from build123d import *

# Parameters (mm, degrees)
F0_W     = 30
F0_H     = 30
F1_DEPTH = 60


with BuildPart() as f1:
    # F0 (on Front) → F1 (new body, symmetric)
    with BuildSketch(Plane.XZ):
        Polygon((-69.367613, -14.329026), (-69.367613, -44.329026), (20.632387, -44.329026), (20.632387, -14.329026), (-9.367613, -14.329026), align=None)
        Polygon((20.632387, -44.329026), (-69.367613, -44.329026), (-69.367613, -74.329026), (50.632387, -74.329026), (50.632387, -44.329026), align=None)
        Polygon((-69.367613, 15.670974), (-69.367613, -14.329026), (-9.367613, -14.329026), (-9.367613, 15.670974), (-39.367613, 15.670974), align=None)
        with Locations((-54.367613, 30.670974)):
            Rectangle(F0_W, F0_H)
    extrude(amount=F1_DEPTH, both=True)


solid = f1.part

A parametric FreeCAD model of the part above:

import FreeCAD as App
import Part
import Sketcher

doc = App.newDocument("Part")
body = doc.addObject("PartDesign::Body", "Body")

# Sketch on XZ plane
sketch1 = body.newObject("Sketcher::SketchObject", "Sketch")
sketch1.AttachmentSupport = (doc.getObject("XZ_Plane"), [""])
sketch1.MapMode = "FlatFace"
sketch1.addGeometry(Part.LineSegment(App.Vector(-69.367613, -74.329026, 0), App.Vector(50.632387, -74.329026, 0)), False)
sketch1.addGeometry(Part.LineSegment(App.Vector(50.632387, -74.329026, 0), App.Vector(50.632387, -44.329026, 0)), False)
sketch1.addGeometry(Part.LineSegment(App.Vector(50.632387, -44.329026, 0), App.Vector(20.632387, -44.329026, 0)), False)
sketch1.addGeometry(Part.LineSegment(App.Vector(20.632387, -44.329026, 0), App.Vector(20.632387, -14.329026, 0)), False)
sketch1.addGeometry(Part.LineSegment(App.Vector(20.632387, -14.329026, 0), App.Vector(-9.367613, -14.329026, 0)), False)
sketch1.addGeometry(Part.LineSegment(App.Vector(-9.367613, -14.329026, 0), App.Vector(-9.367613, 15.670974, 0)), False)
sketch1.addGeometry(Part.LineSegment(App.Vector(-9.367613, 15.670974, 0), App.Vector(-39.367613, 15.670974, 0)), False)
sketch1.addGeometry(Part.LineSegment(App.Vector(-39.367613, 15.670974, 0), App.Vector(-39.367613, 45.670974, 0)), False)
sketch1.addGeometry(Part.LineSegment(App.Vector(-39.367613, 45.670974, 0), App.Vector(-69.367613, 45.670974, 0)), False)
sketch1.addGeometry(Part.LineSegment(App.Vector(-69.367613, 45.670974, 0), App.Vector(-69.367613, -74.329026, 0)), False)
sketch1.addConstraint(Sketcher.Constraint("Coincident", 0, 2, 1, 1))
sketch1.addConstraint(Sketcher.Constraint("Coincident", 1, 2, 2, 1))
sketch1.addConstraint(Sketcher.Constraint("Coincident", 2, 2, 3, 1))
sketch1.addConstraint(Sketcher.Constraint("Coincident", 3, 2, 4, 1))
sketch1.addConstraint(Sketcher.Constraint("Coincident", 4, 2, 5, 1))
sketch1.addConstraint(Sketcher.Constraint("Coincident", 5, 2, 6, 1))
sketch1.addConstraint(Sketcher.Constraint("Coincident", 6, 2, 7, 1))
sketch1.addConstraint(Sketcher.Constraint("Coincident", 7, 2, 8, 1))
sketch1.addConstraint(Sketcher.Constraint("Coincident", 8, 2, 9, 1))
sketch1.addConstraint(Sketcher.Constraint("Coincident", 9, 2, 0, 1))
sketch1.addConstraint(Sketcher.Constraint("Horizontal", 0))
sketch1.addConstraint(Sketcher.Constraint("Vertical", 1))
sketch1.addConstraint(Sketcher.Constraint("Horizontal", 2))
sketch1.addConstraint(Sketcher.Constraint("Vertical", 3))
sketch1.addConstraint(Sketcher.Constraint("Horizontal", 4))
sketch1.addConstraint(Sketcher.Constraint("Vertical", 5))
sketch1.addConstraint(Sketcher.Constraint("Horizontal", 6))
sketch1.addConstraint(Sketcher.Constraint("Vertical", 7))
sketch1.addConstraint(Sketcher.Constraint("Horizontal", 8))
sketch1.addConstraint(Sketcher.Constraint("Vertical", 9))
sketch1.addConstraint(Sketcher.Constraint("Equal", 2, 4))
sketch1.addConstraint(Sketcher.Constraint("Equal", 4, 6))
sketch1.addConstraint(Sketcher.Constraint("Equal", 6, 8))
sketch1.addConstraint(Sketcher.Constraint("Equal", 8, 1))
sketch1.addConstraint(Sketcher.Constraint("Equal", 1, 3))
sketch1.addConstraint(Sketcher.Constraint("Equal", 3, 5))
sketch1.addConstraint(Sketcher.Constraint("Equal", 5, 7))
sketch1.addConstraint(Sketcher.Constraint("DistanceX", 0, 1, 0, 2, 120.0))
sketch1.addConstraint(Sketcher.Constraint("DistanceX", -1, 1, 0, 2, 50.632387))
sketch1.addConstraint(Sketcher.Constraint("DistanceY", 0, 2, -1, 1, 74.329026))
pad1 = body.newObject("PartDesign::Pad", "Pad")
pad1.Profile = sketch1
pad1.Length = 120
pad1.Midplane = True

doc.recompute()
